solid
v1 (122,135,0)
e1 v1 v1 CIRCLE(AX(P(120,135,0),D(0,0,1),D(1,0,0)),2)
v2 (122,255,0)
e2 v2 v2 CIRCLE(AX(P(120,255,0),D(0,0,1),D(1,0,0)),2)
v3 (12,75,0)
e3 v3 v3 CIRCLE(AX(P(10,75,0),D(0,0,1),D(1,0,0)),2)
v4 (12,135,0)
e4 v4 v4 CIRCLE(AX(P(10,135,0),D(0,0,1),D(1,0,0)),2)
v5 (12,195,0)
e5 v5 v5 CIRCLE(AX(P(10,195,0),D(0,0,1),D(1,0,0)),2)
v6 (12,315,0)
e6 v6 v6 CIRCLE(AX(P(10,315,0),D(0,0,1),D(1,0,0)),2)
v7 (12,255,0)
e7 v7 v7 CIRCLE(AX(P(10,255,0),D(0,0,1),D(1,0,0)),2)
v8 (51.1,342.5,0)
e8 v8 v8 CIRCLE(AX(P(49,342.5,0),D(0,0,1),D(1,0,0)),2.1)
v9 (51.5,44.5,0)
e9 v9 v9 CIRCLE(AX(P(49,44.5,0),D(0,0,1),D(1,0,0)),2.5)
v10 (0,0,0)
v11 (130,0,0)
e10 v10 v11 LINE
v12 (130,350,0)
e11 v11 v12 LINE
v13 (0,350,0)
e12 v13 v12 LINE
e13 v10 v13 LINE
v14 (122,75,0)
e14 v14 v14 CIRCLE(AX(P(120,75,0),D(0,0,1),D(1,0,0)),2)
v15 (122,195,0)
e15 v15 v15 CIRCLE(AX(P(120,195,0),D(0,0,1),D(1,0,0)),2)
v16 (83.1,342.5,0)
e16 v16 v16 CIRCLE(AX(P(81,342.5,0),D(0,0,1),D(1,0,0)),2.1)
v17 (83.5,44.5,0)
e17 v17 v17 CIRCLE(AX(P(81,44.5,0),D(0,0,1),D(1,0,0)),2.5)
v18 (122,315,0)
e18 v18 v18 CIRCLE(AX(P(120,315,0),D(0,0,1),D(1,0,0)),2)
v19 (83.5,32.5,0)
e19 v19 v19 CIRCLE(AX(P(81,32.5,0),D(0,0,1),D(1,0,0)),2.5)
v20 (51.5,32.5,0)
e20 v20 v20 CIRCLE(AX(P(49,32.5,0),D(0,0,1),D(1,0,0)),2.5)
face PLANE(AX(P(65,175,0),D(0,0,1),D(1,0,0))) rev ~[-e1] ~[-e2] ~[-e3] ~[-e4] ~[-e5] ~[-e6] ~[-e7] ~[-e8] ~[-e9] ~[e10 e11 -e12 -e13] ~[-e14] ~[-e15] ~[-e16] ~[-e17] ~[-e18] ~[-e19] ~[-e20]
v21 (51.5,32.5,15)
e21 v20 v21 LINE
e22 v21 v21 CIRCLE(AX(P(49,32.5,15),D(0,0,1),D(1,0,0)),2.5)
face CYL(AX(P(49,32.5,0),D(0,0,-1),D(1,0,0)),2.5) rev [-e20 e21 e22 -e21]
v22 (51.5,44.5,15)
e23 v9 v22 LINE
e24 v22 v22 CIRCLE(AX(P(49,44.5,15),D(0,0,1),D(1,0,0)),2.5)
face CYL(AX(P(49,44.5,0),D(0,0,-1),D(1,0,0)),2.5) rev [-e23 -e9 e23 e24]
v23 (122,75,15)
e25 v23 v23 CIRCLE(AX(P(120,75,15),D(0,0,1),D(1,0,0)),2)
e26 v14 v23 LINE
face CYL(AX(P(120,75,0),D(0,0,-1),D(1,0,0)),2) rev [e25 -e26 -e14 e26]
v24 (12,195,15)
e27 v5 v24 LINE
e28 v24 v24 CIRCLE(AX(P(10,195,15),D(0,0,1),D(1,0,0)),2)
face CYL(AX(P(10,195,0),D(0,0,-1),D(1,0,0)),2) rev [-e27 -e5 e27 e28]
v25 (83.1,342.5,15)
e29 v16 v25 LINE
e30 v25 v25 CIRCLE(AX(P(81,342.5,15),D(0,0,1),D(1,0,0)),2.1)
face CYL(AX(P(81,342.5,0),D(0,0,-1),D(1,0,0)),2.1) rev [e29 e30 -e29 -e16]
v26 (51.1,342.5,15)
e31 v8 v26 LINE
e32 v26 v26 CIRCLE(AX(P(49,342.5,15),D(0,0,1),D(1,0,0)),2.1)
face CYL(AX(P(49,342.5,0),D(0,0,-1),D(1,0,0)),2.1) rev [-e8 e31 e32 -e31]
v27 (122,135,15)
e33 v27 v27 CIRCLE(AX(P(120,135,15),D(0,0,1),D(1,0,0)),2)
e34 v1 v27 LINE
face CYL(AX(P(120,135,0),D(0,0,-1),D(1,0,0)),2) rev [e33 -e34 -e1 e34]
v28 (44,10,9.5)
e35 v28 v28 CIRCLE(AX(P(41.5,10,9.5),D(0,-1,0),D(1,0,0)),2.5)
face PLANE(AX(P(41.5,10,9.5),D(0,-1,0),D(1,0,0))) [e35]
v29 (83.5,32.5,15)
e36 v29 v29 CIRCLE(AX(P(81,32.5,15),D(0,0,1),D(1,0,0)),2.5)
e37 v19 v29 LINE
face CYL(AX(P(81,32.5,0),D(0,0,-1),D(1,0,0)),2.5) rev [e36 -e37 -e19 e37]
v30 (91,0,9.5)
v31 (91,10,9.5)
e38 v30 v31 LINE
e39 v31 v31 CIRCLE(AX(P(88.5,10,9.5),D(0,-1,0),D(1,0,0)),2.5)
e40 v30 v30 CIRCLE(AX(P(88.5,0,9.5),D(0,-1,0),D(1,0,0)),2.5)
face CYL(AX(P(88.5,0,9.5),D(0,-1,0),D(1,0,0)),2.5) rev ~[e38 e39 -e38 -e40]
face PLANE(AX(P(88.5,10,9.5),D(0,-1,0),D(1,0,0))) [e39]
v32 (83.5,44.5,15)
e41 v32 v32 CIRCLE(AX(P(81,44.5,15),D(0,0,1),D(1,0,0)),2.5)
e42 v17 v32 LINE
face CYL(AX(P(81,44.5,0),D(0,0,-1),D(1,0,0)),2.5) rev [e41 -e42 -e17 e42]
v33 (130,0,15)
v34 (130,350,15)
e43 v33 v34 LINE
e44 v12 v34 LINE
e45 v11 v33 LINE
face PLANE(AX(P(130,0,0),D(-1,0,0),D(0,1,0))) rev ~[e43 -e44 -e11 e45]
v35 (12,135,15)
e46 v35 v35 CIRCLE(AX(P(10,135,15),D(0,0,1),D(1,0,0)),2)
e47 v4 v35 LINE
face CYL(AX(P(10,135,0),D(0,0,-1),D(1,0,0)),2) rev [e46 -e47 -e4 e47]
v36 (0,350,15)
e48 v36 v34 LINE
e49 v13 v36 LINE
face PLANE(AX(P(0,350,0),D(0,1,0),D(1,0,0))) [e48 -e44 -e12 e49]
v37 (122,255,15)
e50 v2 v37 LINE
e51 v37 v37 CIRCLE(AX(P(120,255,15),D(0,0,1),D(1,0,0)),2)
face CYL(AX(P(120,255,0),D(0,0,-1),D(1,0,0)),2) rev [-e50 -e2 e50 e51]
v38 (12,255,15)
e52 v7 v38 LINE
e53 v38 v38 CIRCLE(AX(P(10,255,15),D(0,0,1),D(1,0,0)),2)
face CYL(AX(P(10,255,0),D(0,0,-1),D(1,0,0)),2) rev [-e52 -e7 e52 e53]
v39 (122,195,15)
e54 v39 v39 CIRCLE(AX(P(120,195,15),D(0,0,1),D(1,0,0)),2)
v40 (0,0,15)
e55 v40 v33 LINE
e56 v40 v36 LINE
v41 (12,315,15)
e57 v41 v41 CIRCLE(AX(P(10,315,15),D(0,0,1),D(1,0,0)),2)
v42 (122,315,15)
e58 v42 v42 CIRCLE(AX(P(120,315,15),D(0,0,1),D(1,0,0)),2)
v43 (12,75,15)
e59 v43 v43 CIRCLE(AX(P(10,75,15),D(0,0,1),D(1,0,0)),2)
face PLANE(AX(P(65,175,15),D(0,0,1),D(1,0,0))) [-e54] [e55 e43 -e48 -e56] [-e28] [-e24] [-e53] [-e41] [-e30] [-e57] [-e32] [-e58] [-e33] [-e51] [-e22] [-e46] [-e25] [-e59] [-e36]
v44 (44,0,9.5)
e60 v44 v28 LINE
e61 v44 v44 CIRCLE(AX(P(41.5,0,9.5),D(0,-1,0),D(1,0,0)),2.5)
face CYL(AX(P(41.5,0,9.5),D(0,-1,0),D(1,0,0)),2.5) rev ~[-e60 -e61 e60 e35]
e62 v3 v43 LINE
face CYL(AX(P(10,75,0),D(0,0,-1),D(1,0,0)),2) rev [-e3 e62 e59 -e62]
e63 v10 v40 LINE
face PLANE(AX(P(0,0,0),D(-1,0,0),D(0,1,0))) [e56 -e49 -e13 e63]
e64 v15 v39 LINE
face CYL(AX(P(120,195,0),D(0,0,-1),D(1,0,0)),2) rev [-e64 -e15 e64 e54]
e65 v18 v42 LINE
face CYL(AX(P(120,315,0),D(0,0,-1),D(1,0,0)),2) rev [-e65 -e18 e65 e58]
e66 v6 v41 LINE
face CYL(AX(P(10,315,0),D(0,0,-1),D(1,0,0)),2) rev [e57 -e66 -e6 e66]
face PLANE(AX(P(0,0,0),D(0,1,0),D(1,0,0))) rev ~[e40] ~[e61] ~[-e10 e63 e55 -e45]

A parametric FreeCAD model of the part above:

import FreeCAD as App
import Part
import Sketcher

V = App.Vector
Q = App.Units.Quantity


def add_polygon(sketch, points):
    """Adds a closed chain of lines whose ends are joined by coincident constraints."""
    first, n = sketch.GeometryCount, len(points)
    for a, b in zip(points, points[1:] + points[:1]):
        sketch.addGeometry(Part.LineSegment(App.Vector(*a, 0), App.Vector(*b, 0)), False)
    for i in range(n):
        sketch.addConstraint(Sketcher.Constraint("Coincident", first + i, 2, first + (i + 1) % n, 1))

doc = App.newDocument("Part")
body = doc.addObject("PartDesign::Body", "Body")

# Sketch on XY plane
sketch1 = body.newObject("Sketcher::SketchObject", "Sketch")
sketch1.AttachmentSupport = (doc.getObject("XY_Plane"), [""])
sketch1.MapMode = "FlatFace"
add_polygon(sketch1, [(0, 350), (0, 0), (130, 0), (130, 350)])  # lines 0-3
sketch1.addGeometry(Part.Circle(V(10, 75, 0), V(0, 0, 1), 2), False)  # 4
sketch1.addGeometry(Part.Circle(V(49, 32.5, 0), V(0, 0, 1), 2.5), False)  # 5
sketch1.addGeometry(Part.Circle(V(49, 44.5, 0), V(0, 0, 1), 2.5), False)  # 6
sketch1.addGeometry(Part.Circle(V(10, 135, 0), V(0, 0, 1), 2), False)  # 7
sketch1.addGeometry(Part.Circle(V(81, 32.5, 0), V(0, 0, 1), 2.5), False)  # 8
sketch1.addGeometry(Part.Circle(V(81, 44.5, 0), V(0, 0, 1), 2.5), False)  # 9
sketch1.addGeometry(Part.Circle(V(120, 75, 0), V(0, 0, 1), 2), False)  # 10
sketch1.addGeometry(Part.Circle(V(120, 135, 0), V(0, 0, 1), 2), False)  # 11
sketch1.addGeometry(Part.Circle(V(10, 195, 0), V(0, 0, 1), 2), False)  # 12
sketch1.addGeometry(Part.Circle(V(10, 255, 0), V(0, 0, 1), 2), False)  # 13
sketch1.addGeometry(Part.Circle(V(10, 315, 0), V(0, 0, 1), 2), False)  # 14
sketch1.addGeometry(Part.Circle(V(49, 342.5, 0), V(0, 0, 1), 2.1), False)  # 15
sketch1.addGeometry(Part.Circle(V(120, 195, 0), V(0, 0, 1), 2), False)  # 16
sketch1.addGeometry(Part.Circle(V(120, 255, 0), V(0, 0, 1), 2), False)  # 17
sketch1.addGeometry(Part.Circle(V(81, 342.5, 0), V(0, 0, 1), 2.1), False)  # 18
sketch1.addGeometry(Part.Circle(V(120, 315, 0), V(0, 0, 1), 2), False)  # 19
sketch1.addConstraint([
    Sketcher.Constraint("Vertical", 0),
    Sketcher.Constraint("Horizontal", 1),
    Sketcher.Constraint("Vertical", 2),
    Sketcher.Constraint("Horizontal", 3),
    Sketcher.Constraint("Coincident", 0, 2, -1, 1),
    Sketcher.Constraint("Equal", 5, 6),
    Sketcher.Constraint("Equal", 4, 7),
    Sketcher.Constraint("Equal", 6, 8),
    Sketcher.Constraint("Equal", 8, 9),
    Sketcher.Constraint("Equal", 7, 10),
    Sketcher.Constraint("Equal", 10, 11),
    Sketcher.Constraint("Equal", 11, 12),
    Sketcher.Constraint("Equal", 12, 13),
    Sketcher.Constraint("Equal", 13, 14),
    Sketcher.Constraint("Equal", 14, 16),
    Sketcher.Constraint("Equal", 16, 17),
    Sketcher.Constraint("Equal", 15, 18),
    Sketcher.Constraint("Equal", 17, 19),
    Sketcher.Constraint("Horizontal", 5, 3, 8, 3),
    Sketcher.Constraint("Horizontal", 6, 3, 9, 3),
    Sketcher.Constraint("Horizontal", 4, 3, 10, 3),
    Sketcher.Constraint("Horizontal", 7, 3, 11, 3),
    Sketcher.Constraint("Horizontal", 12, 3, 16, 3),
    Sketcher.Constraint("Horizontal", 13, 3, 17, 3),
    Sketcher.Constraint("Horizontal", 15, 3, 18, 3),
    Sketcher.Constraint("Horizontal", 14, 3, 19, 3),
    Sketcher.Constraint("Vertical", 5, 3, 6, 3),
    Sketcher.Constraint("Vertical", 4, 3, 7, 3),
    Sketcher.Constraint("Vertical", 8, 3, 9, 3),
    Sketcher.Constraint("Vertical", 10, 3, 11, 3),
    Sketcher.Constraint("Vertical", 7, 3, 12, 3),
    Sketcher.Constraint("Vertical", 12, 3, 13, 3),
    Sketcher.Constraint("Vertical", 13, 3, 14, 3),
    Sketcher.Constraint("Vertical", 6, 3, 15, 3),
    Sketcher.Constraint("Vertical", 11, 3, 16, 3),
    Sketcher.Constraint("Vertical", 16, 3, 17, 3),
    Sketcher.Constraint("Vertical", 9, 3, 18, 3),
    Sketcher.Constraint("Vertical", 17, 3, 19, 3),
    Sketcher.Constraint("Diameter", 4, Q("4 mm")),
    Sketcher.Constraint("Diameter", 5, Q("5 mm")),
    Sketcher.Constraint("Diameter", 15, Q("4.2 mm")),
    Sketcher.Constraint("DistanceX", 1, 1, 1, 2, Q("130 mm")),
    Sketcher.Constraint("DistanceY", 0, 2, 0, 1, Q("350 mm")),
    Sketcher.Constraint("DistanceX", -1, 1, 4, 3, Q("10 mm")),
    Sketcher.Constraint("DistanceY", -1, 1, 4, 3, Q("75 mm")),
    Sketcher.Constraint("DistanceX", -1, 1, 5, 3, Q("49 mm")),
    Sketcher.Constraint("DistanceY", -1, 1, 7, 3, Q("135 mm")),
    Sketcher.Constraint("DistanceX", -1, 1, 8, 3, Q("81 mm")),
    Sketcher.Constraint("DistanceX", -1, 1, 10, 3, Q("120 mm")),
    Sketcher.Constraint("DistanceY", -1, 1, 12, 3, Q("195 mm")),
    Sketcher.Constraint("DistanceY", -1, 1, 13, 3, Q("255 mm")),
    Sketcher.Constraint("DistanceY", -1, 1, 14, 3, Q("315 mm")),
    Sketcher.Constraint("DistanceY", 5, 3, 6, 3, Q("12 mm")),
    Sketcher.Constraint("DistanceY", -1, 1, 5, 3, Q("32.5 mm")),
    Sketcher.Constraint("DistanceY", -1, 1, 15, 3, Q("342.5 mm")),
])
pad1 = body.newObject("PartDesign::Pad", "Pad")
pad1.Profile = sketch1
pad1.Length = 15

# Sketch on XZ plane
sketch2 = body.newObject("Sketcher::SketchObject", "Sketch001")
sketch2.AttachmentSupport = (doc.getObject("XZ_Plane"), [""])
sketch2.MapMode = "FlatFace"
sketch2.addGeometry([
    Part.Circle(V(41.5, 9.5, 0), V(0, 0, 1), 2.5),
    Part.Circle(V(88.5, 9.5, 0), V(0, 0, 1), 2.5),
], False)
sketch2.addConstraint([
    Sketcher.Constraint("Equal", 0, 1),
    Sketcher.Constraint("Horizontal", 0, 3, 1, 3),
    Sketcher.Constraint("Diameter", 0, Q("5 mm")),
    Sketcher.Constraint("DistanceX", 0, 3, 1, 3, Q("47 mm")),
    Sketcher.Constraint("DistanceX", -1, 1, 0, 3, Q("41.5 mm")),
    Sketcher.Constraint("DistanceY", -1, 1, 0, 3, Q("9.5 mm")),
])
pocket1 = body.newObject("PartDesign::Pocket", "Pocket")
pocket1.Profile = sketch2
pocket1.Length = 10

doc.recompute()
